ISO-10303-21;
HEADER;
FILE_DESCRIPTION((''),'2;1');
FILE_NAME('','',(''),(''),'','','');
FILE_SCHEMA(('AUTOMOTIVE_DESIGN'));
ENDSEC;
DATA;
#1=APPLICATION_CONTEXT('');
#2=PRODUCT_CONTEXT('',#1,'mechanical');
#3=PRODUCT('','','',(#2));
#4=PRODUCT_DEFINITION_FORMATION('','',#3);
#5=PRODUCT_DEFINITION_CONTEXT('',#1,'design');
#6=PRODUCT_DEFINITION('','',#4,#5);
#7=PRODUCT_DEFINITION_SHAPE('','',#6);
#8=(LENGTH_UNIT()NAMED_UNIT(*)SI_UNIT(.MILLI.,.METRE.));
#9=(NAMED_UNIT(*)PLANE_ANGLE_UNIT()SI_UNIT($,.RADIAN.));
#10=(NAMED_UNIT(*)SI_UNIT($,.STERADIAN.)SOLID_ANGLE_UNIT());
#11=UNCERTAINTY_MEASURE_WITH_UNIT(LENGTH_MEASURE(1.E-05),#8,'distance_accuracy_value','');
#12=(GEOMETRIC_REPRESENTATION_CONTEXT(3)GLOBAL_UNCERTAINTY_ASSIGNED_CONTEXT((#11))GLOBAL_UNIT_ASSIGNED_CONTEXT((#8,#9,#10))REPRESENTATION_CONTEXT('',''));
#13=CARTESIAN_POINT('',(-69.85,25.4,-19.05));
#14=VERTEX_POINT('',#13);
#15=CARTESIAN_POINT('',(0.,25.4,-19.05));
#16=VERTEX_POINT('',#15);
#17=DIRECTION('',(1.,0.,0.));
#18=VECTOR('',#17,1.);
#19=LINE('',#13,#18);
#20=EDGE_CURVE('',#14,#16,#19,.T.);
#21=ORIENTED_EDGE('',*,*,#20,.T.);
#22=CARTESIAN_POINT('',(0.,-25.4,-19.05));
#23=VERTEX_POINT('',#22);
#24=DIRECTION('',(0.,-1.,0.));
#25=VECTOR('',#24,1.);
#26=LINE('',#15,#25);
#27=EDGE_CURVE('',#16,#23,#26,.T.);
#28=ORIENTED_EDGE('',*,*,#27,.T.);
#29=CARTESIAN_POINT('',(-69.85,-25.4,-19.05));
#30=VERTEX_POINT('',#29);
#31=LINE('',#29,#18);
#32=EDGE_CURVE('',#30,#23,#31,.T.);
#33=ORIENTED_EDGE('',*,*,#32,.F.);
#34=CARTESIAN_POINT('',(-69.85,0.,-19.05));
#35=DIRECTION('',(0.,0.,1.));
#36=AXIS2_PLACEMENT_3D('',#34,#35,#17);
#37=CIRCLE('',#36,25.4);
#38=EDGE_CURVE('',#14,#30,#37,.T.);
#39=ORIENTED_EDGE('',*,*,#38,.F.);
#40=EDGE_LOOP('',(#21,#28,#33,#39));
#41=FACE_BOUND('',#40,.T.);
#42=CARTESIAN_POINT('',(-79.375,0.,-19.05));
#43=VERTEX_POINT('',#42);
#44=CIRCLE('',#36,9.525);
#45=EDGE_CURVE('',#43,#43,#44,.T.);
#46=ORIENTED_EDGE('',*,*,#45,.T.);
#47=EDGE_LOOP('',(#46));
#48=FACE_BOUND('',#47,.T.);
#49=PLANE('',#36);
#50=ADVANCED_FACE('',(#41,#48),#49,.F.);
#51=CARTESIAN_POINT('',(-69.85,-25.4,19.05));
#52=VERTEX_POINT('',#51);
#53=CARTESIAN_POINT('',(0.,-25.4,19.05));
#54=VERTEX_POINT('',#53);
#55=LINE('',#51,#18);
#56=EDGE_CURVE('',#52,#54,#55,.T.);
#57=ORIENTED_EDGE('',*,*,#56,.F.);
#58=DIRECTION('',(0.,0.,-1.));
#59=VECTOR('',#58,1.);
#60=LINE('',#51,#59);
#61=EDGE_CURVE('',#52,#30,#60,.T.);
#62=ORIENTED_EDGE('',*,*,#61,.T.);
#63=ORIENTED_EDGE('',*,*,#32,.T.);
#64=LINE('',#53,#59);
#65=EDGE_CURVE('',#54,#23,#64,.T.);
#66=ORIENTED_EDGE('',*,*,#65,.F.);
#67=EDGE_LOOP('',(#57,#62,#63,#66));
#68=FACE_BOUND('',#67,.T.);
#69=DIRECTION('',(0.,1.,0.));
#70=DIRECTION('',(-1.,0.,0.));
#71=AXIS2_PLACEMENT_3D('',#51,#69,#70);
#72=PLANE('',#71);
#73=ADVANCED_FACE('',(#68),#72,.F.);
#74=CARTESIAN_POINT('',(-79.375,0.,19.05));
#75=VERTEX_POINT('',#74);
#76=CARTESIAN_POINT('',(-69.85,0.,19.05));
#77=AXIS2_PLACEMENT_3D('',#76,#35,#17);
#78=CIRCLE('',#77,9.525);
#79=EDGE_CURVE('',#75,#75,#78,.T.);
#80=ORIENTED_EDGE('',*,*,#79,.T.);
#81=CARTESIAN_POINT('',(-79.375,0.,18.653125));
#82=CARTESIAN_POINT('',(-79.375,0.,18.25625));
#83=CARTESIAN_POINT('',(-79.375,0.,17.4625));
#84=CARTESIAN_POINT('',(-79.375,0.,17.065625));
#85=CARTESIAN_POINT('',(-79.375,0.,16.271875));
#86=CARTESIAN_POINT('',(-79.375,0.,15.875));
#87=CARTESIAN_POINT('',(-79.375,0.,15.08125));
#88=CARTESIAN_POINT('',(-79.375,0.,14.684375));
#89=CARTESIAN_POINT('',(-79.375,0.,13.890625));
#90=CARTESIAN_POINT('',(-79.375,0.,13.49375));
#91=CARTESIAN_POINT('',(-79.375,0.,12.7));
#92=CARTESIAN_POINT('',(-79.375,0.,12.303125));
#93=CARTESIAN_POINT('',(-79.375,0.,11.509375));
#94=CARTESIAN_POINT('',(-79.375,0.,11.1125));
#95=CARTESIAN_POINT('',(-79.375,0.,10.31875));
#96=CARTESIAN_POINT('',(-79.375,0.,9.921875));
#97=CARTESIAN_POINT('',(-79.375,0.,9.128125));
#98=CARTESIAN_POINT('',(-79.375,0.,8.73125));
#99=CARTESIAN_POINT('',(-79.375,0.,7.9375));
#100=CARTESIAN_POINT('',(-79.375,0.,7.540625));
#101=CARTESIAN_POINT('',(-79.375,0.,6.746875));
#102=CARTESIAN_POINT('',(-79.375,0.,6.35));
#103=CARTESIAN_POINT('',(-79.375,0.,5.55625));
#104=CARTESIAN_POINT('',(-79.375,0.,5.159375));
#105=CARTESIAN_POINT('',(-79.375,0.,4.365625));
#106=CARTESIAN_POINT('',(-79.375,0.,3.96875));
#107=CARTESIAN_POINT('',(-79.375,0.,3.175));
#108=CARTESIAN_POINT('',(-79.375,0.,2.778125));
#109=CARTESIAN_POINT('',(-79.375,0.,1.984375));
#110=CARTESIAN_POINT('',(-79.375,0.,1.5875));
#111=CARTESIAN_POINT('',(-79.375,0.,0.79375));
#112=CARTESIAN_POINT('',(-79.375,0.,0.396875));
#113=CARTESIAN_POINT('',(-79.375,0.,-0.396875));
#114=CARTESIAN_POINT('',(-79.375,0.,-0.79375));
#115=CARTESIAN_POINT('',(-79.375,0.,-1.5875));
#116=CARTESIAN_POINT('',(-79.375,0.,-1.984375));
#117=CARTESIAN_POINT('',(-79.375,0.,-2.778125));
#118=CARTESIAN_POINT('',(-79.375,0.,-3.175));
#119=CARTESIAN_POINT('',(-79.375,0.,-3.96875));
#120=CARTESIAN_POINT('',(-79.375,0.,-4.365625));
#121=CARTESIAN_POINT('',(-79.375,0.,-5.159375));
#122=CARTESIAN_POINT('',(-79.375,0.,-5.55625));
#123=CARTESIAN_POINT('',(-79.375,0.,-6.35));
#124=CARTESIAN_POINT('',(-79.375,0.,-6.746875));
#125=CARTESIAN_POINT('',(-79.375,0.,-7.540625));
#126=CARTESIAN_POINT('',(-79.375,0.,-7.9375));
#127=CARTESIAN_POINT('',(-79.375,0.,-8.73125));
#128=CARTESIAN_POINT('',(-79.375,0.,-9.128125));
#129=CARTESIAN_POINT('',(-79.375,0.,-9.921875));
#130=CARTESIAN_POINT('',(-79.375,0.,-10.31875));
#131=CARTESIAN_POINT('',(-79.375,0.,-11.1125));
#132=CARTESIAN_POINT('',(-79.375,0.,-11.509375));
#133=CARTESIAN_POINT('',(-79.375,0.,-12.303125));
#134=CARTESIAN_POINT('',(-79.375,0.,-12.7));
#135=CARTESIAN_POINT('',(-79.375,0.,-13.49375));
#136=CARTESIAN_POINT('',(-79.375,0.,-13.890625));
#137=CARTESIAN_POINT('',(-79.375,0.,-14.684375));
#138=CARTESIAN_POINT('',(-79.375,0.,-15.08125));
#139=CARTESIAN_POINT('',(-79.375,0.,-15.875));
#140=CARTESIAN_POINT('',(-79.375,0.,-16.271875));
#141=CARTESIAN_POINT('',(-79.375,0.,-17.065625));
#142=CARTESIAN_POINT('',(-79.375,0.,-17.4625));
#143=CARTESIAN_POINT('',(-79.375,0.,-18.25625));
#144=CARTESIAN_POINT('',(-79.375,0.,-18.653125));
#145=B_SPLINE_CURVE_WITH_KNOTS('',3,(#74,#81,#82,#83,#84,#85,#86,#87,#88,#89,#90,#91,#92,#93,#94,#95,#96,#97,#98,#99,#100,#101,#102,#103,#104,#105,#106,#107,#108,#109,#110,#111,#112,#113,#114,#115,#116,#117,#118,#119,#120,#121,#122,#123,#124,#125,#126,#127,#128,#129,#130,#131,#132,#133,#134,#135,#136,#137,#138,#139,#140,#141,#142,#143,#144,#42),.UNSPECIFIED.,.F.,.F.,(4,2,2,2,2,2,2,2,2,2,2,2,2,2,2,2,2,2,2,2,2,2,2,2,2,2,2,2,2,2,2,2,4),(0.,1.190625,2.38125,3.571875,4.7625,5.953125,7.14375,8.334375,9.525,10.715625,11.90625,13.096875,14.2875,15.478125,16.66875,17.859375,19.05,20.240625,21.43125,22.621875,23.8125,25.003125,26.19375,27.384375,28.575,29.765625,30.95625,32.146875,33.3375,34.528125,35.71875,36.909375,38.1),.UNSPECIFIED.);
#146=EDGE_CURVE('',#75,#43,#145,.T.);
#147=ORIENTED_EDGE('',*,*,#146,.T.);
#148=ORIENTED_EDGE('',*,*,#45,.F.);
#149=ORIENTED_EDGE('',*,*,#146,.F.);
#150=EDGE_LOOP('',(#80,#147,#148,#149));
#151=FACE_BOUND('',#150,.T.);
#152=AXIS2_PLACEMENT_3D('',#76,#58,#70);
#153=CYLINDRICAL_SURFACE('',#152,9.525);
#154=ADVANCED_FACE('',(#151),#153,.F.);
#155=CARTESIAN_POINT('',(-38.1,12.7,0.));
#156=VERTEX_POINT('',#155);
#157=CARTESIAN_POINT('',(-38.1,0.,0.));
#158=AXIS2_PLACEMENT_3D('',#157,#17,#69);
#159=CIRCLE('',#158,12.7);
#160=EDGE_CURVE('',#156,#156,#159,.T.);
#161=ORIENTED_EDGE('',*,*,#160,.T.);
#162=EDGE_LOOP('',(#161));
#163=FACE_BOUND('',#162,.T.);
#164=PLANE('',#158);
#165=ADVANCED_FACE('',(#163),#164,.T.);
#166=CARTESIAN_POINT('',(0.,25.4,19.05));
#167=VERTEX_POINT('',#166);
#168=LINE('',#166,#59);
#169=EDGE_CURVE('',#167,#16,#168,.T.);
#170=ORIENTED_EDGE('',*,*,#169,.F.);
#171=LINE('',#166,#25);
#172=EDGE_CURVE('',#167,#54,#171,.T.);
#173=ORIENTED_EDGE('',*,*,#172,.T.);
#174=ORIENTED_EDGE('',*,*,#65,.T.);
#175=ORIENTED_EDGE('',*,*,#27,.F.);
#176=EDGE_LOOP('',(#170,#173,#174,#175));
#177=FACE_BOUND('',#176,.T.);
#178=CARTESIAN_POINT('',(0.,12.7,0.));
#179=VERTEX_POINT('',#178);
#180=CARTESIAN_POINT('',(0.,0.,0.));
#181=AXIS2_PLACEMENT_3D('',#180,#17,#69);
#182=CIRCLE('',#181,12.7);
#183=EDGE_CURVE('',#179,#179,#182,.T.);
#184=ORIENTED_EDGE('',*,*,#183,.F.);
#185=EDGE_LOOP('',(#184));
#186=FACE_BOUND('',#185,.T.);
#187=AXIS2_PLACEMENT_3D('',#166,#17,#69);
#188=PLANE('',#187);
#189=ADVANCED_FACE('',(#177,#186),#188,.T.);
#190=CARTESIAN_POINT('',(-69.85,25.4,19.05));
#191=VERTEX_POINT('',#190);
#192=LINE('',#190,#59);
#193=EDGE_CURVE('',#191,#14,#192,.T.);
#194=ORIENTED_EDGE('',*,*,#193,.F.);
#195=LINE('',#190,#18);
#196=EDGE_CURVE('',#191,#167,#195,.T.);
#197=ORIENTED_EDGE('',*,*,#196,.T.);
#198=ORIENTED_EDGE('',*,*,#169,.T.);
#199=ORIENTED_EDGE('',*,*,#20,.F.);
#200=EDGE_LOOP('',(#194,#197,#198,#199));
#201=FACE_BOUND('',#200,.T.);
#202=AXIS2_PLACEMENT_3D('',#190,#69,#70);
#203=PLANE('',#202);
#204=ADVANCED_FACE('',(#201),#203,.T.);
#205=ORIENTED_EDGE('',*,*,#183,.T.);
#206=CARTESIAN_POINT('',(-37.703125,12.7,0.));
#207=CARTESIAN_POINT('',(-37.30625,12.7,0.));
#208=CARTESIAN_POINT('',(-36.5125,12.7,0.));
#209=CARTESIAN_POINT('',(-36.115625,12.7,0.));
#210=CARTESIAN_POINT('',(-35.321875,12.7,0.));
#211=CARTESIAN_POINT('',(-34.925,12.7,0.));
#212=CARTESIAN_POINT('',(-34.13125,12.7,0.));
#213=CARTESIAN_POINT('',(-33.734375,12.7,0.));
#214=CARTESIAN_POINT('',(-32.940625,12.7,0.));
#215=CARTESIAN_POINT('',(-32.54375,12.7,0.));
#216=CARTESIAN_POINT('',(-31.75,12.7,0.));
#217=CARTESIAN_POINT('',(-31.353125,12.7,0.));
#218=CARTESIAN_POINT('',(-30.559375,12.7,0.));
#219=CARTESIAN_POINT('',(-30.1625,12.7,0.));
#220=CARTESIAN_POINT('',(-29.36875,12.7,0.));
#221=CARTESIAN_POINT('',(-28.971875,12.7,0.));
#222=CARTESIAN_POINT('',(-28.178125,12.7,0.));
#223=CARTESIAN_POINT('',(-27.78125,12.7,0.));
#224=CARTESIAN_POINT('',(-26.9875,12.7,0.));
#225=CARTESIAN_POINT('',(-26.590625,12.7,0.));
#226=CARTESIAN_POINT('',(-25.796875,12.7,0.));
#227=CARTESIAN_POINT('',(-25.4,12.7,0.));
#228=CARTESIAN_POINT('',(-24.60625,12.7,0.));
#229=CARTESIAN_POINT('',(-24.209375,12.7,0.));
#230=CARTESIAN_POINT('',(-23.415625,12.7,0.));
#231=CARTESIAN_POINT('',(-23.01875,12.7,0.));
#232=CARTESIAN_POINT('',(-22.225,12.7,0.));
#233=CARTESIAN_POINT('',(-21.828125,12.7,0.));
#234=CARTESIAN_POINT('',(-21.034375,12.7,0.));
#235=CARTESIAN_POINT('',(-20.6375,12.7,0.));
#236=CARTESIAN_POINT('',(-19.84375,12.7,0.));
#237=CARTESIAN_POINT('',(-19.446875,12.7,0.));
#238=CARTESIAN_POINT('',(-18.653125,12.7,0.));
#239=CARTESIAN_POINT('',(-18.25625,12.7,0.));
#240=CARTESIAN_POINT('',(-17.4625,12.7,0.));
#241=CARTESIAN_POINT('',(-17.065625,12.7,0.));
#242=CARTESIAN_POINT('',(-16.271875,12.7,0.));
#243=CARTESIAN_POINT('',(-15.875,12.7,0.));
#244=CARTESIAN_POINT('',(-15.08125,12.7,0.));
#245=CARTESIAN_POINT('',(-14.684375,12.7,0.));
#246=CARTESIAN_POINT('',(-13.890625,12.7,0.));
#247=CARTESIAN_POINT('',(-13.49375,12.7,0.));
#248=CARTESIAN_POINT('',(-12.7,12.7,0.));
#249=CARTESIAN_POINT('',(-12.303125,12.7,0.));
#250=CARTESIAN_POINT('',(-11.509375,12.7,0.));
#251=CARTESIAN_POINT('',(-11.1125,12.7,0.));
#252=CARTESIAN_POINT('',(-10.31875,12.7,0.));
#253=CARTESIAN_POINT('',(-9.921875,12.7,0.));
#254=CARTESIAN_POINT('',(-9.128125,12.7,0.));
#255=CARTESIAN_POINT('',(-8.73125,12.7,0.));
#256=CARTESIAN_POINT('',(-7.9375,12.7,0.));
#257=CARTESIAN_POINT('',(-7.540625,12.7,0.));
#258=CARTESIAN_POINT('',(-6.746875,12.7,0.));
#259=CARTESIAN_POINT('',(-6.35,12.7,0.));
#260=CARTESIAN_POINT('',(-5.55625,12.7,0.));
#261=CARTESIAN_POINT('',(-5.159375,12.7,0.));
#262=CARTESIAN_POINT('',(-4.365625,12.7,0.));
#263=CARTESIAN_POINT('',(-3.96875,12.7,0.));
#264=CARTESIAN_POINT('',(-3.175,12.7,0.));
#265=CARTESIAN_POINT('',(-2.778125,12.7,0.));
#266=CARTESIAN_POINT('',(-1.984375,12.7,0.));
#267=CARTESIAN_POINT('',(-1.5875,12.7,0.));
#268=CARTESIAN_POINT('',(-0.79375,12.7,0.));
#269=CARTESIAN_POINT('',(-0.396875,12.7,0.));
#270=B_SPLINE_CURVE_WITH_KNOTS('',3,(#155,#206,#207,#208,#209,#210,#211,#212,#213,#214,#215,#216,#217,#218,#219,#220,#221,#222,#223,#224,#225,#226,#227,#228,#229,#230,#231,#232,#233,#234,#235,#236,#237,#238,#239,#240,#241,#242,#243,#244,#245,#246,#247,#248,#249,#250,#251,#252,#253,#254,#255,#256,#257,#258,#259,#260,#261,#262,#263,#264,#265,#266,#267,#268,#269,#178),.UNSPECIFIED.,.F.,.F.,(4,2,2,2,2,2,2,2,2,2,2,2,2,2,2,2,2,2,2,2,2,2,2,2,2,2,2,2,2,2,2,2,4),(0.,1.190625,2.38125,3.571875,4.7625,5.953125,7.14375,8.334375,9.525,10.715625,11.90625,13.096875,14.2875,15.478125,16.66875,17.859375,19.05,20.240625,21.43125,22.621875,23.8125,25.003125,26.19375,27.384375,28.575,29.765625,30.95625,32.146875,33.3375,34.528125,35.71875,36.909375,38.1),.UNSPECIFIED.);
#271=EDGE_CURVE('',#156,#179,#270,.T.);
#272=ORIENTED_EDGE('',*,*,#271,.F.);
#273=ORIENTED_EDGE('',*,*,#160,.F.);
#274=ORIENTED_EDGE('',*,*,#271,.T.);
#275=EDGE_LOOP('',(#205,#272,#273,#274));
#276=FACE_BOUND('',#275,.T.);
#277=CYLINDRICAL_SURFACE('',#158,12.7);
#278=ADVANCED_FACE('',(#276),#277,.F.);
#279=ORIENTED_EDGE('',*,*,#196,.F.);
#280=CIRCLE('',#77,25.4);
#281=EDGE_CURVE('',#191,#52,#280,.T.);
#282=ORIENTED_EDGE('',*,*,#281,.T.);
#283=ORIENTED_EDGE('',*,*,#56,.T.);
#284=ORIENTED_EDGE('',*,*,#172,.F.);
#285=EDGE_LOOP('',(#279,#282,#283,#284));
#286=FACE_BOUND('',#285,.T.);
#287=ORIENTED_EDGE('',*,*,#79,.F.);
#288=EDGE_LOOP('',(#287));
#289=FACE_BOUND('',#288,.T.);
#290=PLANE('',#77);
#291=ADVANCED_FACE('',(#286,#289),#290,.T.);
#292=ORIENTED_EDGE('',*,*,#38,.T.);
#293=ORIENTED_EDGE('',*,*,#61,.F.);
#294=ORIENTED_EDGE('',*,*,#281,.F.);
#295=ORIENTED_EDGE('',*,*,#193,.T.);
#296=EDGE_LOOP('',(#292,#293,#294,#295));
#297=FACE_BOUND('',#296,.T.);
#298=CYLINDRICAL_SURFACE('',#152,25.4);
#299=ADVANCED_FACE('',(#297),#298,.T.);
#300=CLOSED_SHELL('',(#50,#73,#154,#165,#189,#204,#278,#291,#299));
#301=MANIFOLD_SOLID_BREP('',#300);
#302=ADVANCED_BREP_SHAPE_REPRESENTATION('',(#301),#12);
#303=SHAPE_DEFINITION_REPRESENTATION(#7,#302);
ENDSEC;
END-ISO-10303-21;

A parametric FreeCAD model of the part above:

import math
import FreeCAD as App
import Part
import Sketcher
Q = App.Units.Quantity

doc = App.newDocument("Part")
params = doc.addObject("Spreadsheet::Sheet", "Params")
for row, (alias, value) in enumerate([
    ("sketch1_radius", "1 in"),
    ("sketch1_diameter", "0.75 in"),
    ("sketch1_width", "2.75 in"),
    ("pad1_length", "1.5 in"),
    ("sketch2_diameter", "1 in"),
    ("pocket1_length", "1.5 in"),
], start=1):
    params.set(f"A{row}", alias)
    params.set(f"B{row}", "=" + value)
    params.setAlias(f"B{row}", alias)

body = doc.addObject("PartDesign::Body", "Body")

# Sketch on XY plane
sketch1 = body.newObject("Sketcher::SketchObject", "Sketch")
sketch1.AttachmentSupport = (doc.getObject("XY_Plane"), [""])
sketch1.MapMode = "FlatFace"
sketch1.addGeometry([
    Part.LineSegment(App.Vector(0, 25, 0), App.Vector(-70, 25, 0)),  # 0
    Part.ArcOfCircle(Part.Circle(App.Vector(-70, 0, 0), App.Vector(0, 0, 1), 25), math.radians(90), math.radians(270)),  # 1
    Part.LineSegment(App.Vector(-70, -25, 0), App.Vector(0, -25, 0)),  # 2
    Part.LineSegment(App.Vector(0, -25, 0), App.Vector(0, 25, 0)),  # 3
    Part.Circle(App.Vector(-70, 0, 0), App.Vector(0, 0, 1), 10),  # 4
], False)
sketch1.addConstraint([
    Sketcher.Constraint("Tangent", 0, 2, 1, 1),
    Sketcher.Constraint("Tangent", 1, 2, 2, 1),
    Sketcher.Constraint("Coincident", 2, 2, 3, 1),
    Sketcher.Constraint("Coincident", 3, 2, 0, 1),
    Sketcher.Constraint("Horizontal", 0),
    Sketcher.Constraint("Horizontal", 2),
    Sketcher.Constraint("Vertical", 3),
    Sketcher.Constraint("Coincident", 4, 3, 1, 3),
    Sketcher.Constraint("Symmetric", 2, 2, 3, 2, -1, 1),
    Sketcher.Constraint("Radius", 1, Q("1 in")),
    Sketcher.Constraint("Diameter", 4, Q("0.75 in")),
    Sketcher.Constraint("DistanceX", 0, 2, 0, 1, Q("2.75 in")),
])
sketch1.setExpression("Constraints[9]", "Params.sketch1_radius")
sketch1.setExpression("Constraints[10]", "Params.sketch1_diameter")
sketch1.setExpression("Constraints[11]", "Params.sketch1_width")
pad1 = body.newObject("PartDesign::Pad", "Pad")
pad1.Profile = sketch1
pad1.setExpression("Length", "Params.pad1_length")
pad1.Midplane = True

# Sketch on YZ plane
sketch2 = body.newObject("Sketcher::SketchObject", "Sketch001")
sketch2.AttachmentSupport = (doc.getObject("YZ_Plane"), [""])
sketch2.MapMode = "FlatFace"
sketch2.addGeometry(Part.Circle(App.Vector(0, 0, 0), App.Vector(0, 0, 1), 13), False)
sketch2.addConstraint([
    Sketcher.Constraint("Coincident", 0, 3, -1, 1),
    Sketcher.Constraint("Diameter", 0, Q("1 in")),
])
sketch2.setExpression("Constraints[1]", "Params.sketch2_diameter")
pocket1 = body.newObject("PartDesign::Pocket", "Pocket")
pocket1.Profile = sketch2
pocket1.setExpression("Length", "Params.pocket1_length")

doc.recompute()
